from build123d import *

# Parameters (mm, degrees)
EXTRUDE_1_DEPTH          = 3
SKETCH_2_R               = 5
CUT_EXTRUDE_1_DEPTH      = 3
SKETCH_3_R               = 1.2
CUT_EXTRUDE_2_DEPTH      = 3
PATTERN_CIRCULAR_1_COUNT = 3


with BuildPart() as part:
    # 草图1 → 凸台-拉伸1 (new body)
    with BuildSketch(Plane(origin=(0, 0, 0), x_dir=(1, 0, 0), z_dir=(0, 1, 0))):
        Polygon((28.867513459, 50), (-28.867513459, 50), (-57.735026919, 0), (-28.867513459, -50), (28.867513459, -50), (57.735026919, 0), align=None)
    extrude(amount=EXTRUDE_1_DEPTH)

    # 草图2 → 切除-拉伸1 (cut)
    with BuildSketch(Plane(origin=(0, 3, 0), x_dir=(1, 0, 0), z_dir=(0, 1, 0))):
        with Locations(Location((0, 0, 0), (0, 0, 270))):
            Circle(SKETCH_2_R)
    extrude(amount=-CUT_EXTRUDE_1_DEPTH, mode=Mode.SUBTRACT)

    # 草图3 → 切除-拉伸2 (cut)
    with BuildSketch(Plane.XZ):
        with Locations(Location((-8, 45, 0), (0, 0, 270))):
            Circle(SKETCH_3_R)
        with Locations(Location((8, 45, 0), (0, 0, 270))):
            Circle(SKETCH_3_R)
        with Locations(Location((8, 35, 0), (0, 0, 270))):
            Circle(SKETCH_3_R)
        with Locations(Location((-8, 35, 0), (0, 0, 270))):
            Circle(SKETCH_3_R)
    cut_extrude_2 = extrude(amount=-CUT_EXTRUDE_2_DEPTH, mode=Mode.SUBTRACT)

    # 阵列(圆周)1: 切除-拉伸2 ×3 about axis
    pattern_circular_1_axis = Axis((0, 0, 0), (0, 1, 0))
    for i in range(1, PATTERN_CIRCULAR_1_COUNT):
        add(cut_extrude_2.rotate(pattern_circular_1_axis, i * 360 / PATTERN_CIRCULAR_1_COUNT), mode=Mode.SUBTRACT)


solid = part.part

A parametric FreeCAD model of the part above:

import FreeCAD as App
import Part
import Sketcher

V = App.Vector
Q = App.Units.Quantity


def add_polygon(sketch, points):
    """Adds a closed chain of lines whose ends are joined by coincident constraints."""
    first, n = sketch.GeometryCount, len(points)
    for a, b in zip(points, points[1:] + points[:1]):
        sketch.addGeometry(Part.LineSegment(App.Vector(*a, 0), App.Vector(*b, 0)), False)
    for i in range(n):
        sketch.addConstraint(Sketcher.Constraint("Coincident", first + i, 2, first + (i + 1) % n, 1))

doc = App.newDocument("Part")
body = doc.addObject("PartDesign::Body", "Body")

# Sketch on XZ plane
sketch1 = doc.addObject("Sketcher::SketchObject", "Sketch")
body.addObject(sketch1)
sketch1.AttachmentSupport = (doc.XZ_Plane, [""])
sketch1.MapMode = "FlatFace"
add_polygon(sketch1, [(29, -50), (-29, -50), (-58, 0), (-29, 50), (29, 50), (58, 0)])  # lines 0-5
sketch1.addConstraint([
    Sketcher.Constraint("Horizontal", 0),
    Sketcher.Constraint("Horizontal", 3),
    Sketcher.Constraint("Symmetric", 0, 2, 3, 2, -1, 1),
    Sketcher.Constraint("Symmetric", 1, 2, 4, 2, -1, 1),
    Sketcher.Constraint("PointOnObject", 1, 2, -1),
    Sketcher.Constraint("Parallel", 2, 5),
    Sketcher.Constraint("Vertical", 0, 2, 2, 2),
    Sketcher.Constraint("Angle", 1, Q("120 deg")),
    Sketcher.Constraint("DistanceY", 0, 2, -1, 1, 50.0),
    Sketcher.Constraint("DistanceX", 0, 2, 0, 1, 57.735027),
])
pad1 = doc.addObject("PartDesign::Pad", "Pad")
body.addObject(pad1)
pad1.Profile = sketch1
pad1.Length = 3
pad1.Reversed = True

# Sketch on XZ plane
sketch2 = doc.addObject("Sketcher::SketchObject", "Sketch001")
body.addObject(sketch2)
sketch2.AttachmentSupport = (doc.XZ_Plane, [""])
sketch2.MapMode = "FlatFace"
sketch2.AttachmentOffset = App.Placement(V(0, 0, -3), App.Rotation())
sketch2.addGeometry(Part.Circle(V(0, 0, 0), V(0, 0, 1), 5), False)
sketch2.addConstraint([
    Sketcher.Constraint("Coincident", 0, 3, -1, 1),
    Sketcher.Constraint("Diameter", 0, 10.0),
])
pocket1 = doc.addObject("PartDesign::Pocket", "Pocket")
body.addObject(pocket1)
pocket1.Profile = sketch2
pocket1.Length = 3
pocket1.Reversed = True

# Sketch on XZ plane
sketch3 = doc.addObject("Sketcher::SketchObject", "Sketch002")
body.addObject(sketch3)
sketch3.AttachmentSupport = (doc.XZ_Plane, [""])
sketch3.MapMode = "FlatFace"
sketch3.addGeometry([
    Part.Circle(V(-8, 45, 0), V(0, 0, 1), 1.2),
    Part.Circle(V(8, 45, 0), V(0, 0, 1), 1.2),
    Part.Circle(V(8, 35, 0), V(0, 0, 1), 1.2),
    Part.Circle(V(-8, 35, 0), V(0, 0, 1), 1.2),
], False)
sketch3.addConstraint([
    Sketcher.Constraint("Equal", 0, 1),
    Sketcher.Constraint("Equal", 1, 2),
    Sketcher.Constraint("Equal", 2, 3),
    Sketcher.Constraint("Symmetric", 0, 3, 1, 3, -2),
    Sketcher.Constraint("Symmetric", 2, 3, 3, 3, -2),
    Sketcher.Constraint("Vertical", 1, 3, 2, 3),
    Sketcher.Constraint("Diameter", 0, 2.4),
    Sketcher.Constraint("DistanceX", 0, 3, -1, 1, 8.0),
    Sketcher.Constraint("DistanceY", -1, 1, 0, 3, 45.0),
    Sketcher.Constraint("DistanceY", -1, 1, 2, 3, 35.0),
])
pocket2 = doc.addObject("PartDesign::Pocket", "Pocket001")
body.addObject(pocket2)
pocket2.Profile = sketch3
pocket2.Length = 3
doc.recompute()

polarpattern = doc.addObject("PartDesign::PolarPattern", "PolarPattern")
body.addObject(polarpattern)
polarpattern.Originals = [pocket2]
polarpattern.Axis = (doc.Y_Axis, [""])
polarpattern.Angle = 360
polarpattern.Occurrences = 3
body.Tip = polarpattern

doc.recompute()
